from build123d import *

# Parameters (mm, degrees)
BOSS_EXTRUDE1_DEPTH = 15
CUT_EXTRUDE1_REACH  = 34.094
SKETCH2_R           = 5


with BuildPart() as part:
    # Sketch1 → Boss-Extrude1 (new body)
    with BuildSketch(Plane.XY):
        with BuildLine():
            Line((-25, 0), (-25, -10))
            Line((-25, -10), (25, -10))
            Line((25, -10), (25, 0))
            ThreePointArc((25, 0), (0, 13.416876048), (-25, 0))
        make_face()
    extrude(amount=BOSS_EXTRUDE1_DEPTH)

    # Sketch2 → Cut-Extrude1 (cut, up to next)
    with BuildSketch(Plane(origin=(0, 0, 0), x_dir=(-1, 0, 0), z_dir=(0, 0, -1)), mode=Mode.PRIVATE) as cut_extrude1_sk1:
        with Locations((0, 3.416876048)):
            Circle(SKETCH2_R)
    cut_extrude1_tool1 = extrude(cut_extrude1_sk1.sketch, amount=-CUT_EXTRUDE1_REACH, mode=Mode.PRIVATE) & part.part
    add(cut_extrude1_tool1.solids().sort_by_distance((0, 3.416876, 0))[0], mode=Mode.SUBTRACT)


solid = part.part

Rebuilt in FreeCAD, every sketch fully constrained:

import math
import FreeCAD as App
import Part
import Sketcher

doc = App.newDocument("Part")
body = doc.addObject("PartDesign::Body", "Body")

sketch1 = body.newObject("Sketcher::SketchObject", "Sketch")
sketch1.AttachmentSupport = (doc.getObject("XY_Plane"), [""])
sketch1.MapMode = "FlatFace"
sketch1.addGeometry([
    Part.LineSegment(App.Vector(-25, 0, 0), App.Vector(-25, -10, 0)),
    Part.LineSegment(App.Vector(-25, -10, 0), App.Vector(25, -10, 0)),
    Part.LineSegment(App.Vector(25, -10, 0), App.Vector(25, 0, 0)),
    Part.ArcOfCircle(Part.Circle(App.Vector(0, -16.583124, 0), App.Vector(0, 0, 1), 30), math.radians(33.55731), math.radians(146.44269)),
], False)
sketch1.addConstraint([
    Sketcher.Constraint("Coincident", 0, 2, 1, 1),
    Sketcher.Constraint("Coincident", 1, 2, 2, 1),
    Sketcher.Constraint("Coincident", 2, 2, 3, 1),
    Sketcher.Constraint("Coincident", 3, 2, 0, 1),
    Sketcher.Constraint("Vertical", 0),
    Sketcher.Constraint("Horizontal", 1),
    Sketcher.Constraint("Vertical", 2),
    Sketcher.Constraint("Symmetric", 2, 2, 3, 2, -1, 1),
    Sketcher.Constraint("PointOnObject", 3, 3, -2),
    Sketcher.Constraint("Radius", 3, 30.0),
    Sketcher.Constraint("DistanceX", 1, 1, 1, 2, 50.0),
    Sketcher.Constraint("DistanceY", 0, 2, 0, 1, 10.0),
])
pad1 = body.newObject("PartDesign::Pad", "Pad")
pad1.Profile = sketch1
pad1.Length = 15

sketch2 = body.newObject("Sketcher::SketchObject", "Sketch001")
sketch2.AttachmentSupport = (doc.getObject("XY_Plane"), [""])
sketch2.MapMode = "FlatFace"
sketch2.addGeometry(Part.Circle(App.Vector(0, 3.416876, 0), App.Vector(0, 0, 1), 5), False)
sketch2.addConstraint([
    Sketcher.Constraint("PointOnObject", 0, 3, -2),
    Sketcher.Constraint("Diameter", 0, 10.0),
    Sketcher.Constraint("DistanceY", -1, 1, 0, 3, 3.416876),
])
pocket1 = body.newObject("PartDesign::Pocket", "Pocket")
pocket1.Profile = sketch2
pocket1.Type = "UpToFirst"
pocket1.Reversed = True

doc.recompute()
